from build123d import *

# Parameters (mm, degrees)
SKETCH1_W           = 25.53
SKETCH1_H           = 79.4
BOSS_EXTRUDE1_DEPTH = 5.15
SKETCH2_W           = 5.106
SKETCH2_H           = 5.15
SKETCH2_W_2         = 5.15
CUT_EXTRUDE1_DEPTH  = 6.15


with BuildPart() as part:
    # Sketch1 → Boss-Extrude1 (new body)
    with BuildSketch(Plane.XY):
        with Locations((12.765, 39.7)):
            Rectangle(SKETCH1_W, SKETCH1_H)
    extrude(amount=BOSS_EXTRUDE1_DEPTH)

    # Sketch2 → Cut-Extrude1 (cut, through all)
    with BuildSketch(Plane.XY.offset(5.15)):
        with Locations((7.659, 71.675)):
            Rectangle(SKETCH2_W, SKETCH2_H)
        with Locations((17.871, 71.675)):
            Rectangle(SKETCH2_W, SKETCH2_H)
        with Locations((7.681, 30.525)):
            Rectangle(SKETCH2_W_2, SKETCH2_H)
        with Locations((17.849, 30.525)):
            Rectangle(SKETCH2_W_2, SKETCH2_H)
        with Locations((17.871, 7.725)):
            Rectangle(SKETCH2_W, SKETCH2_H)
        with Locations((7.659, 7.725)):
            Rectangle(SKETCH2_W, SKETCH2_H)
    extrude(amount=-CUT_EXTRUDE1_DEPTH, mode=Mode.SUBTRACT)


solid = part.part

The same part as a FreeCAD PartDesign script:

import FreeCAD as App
import Part
import Sketcher


def add_polygon(sketch, points):
    """Adds a closed chain of lines whose ends are joined by coincident constraints."""
    first, n = sketch.GeometryCount, len(points)
    for a, b in zip(points, points[1:] + points[:1]):
        sketch.addGeometry(Part.LineSegment(App.Vector(*a, 0), App.Vector(*b, 0)), False)
    for i in range(n):
        sketch.addConstraint(Sketcher.Constraint("Coincident", first + i, 2, first + (i + 1) % n, 1))

doc = App.newDocument("Part")
body = doc.addObject("PartDesign::Body", "Body")

# Sketch on XY plane
sketch1 = body.newObject("Sketcher::SketchObject", "Sketch")
sketch1.AttachmentSupport = (doc.getObject("XY_Plane"), [""])
sketch1.MapMode = "FlatFace"
add_polygon(sketch1, [(0, 79), (0, 0), (26, 0), (26, 79)])  # lines 0-3
sketch1.addConstraint([
    Sketcher.Constraint("Vertical", 0),
    Sketcher.Constraint("Horizontal", 1),
    Sketcher.Constraint("Vertical", 2),
    Sketcher.Constraint("Horizontal", 3),
    Sketcher.Constraint("Coincident", 0, 2, -1, 1),
    Sketcher.Constraint("DistanceY", 0, 2, 0, 1, 79.4),
    Sketcher.Constraint("DistanceX", 1, 1, 1, 2, 25.53),
])
pad1 = body.newObject("PartDesign::Pad", "Pad")
pad1.Profile = sketch1
pad1.Length = 5.15

# Sketch on XY plane
sketch2 = body.newObject("Sketcher::SketchObject", "Sketch001")
sketch2.AttachmentSupport = (doc.getObject("XY_Plane"), [""])
sketch2.MapMode = "FlatFace"
sketch2.AttachmentOffset = App.Placement(App.Vector(0, 0, 5.15), App.Rotation())
add_polygon(sketch2, [(5, 74), (5, 69), (10, 69), (10, 74)])  # lines 0-3
add_polygon(sketch2, [(15, 74), (15, 69), (20, 69), (20, 74)])  # lines 4-7
add_polygon(sketch2, [(5, 33), (5, 28), (10, 28), (10, 33)])  # lines 8-11
add_polygon(sketch2, [(15, 33), (15, 28), (20, 28), (20, 33)])  # lines 12-15
add_polygon(sketch2, [(15, 10), (15, 5), (20, 5), (20, 10)])  # lines 16-19
add_polygon(sketch2, [(5, 10), (5, 5), (10, 5), (10, 10)])  # lines 20-23
sketch2.addConstraint([
    Sketcher.Constraint("Vertical", 0),
    Sketcher.Constraint("Horizontal", 1),
    Sketcher.Constraint("Vertical", 2),
    Sketcher.Constraint("Horizontal", 3),
    Sketcher.Constraint("Vertical", 4),
    Sketcher.Constraint("Horizontal", 5),
    Sketcher.Constraint("Vertical", 6),
    Sketcher.Constraint("Horizontal", 7),
    Sketcher.Constraint("Vertical", 8),
    Sketcher.Constraint("Horizontal", 9),
    Sketcher.Constraint("Vertical", 10),
    Sketcher.Constraint("Horizontal", 11),
    Sketcher.Constraint("Vertical", 12),
    Sketcher.Constraint("Horizontal", 13),
    Sketcher.Constraint("Vertical", 14),
    Sketcher.Constraint("Horizontal", 15),
    Sketcher.Constraint("Vertical", 16),
    Sketcher.Constraint("Horizontal", 17),
    Sketcher.Constraint("Vertical", 18),
    Sketcher.Constraint("Horizontal", 19),
    Sketcher.Constraint("Vertical", 20),
    Sketcher.Constraint("Horizontal", 21),
    Sketcher.Constraint("Vertical", 22),
    Sketcher.Constraint("Horizontal", 23),
    Sketcher.Constraint("Horizontal", 1, 2, 4, 2),
    Sketcher.Constraint("Horizontal", 3, 2, 6, 2),
    Sketcher.Constraint("Horizontal", 9, 2, 12, 2),
    Sketcher.Constraint("Horizontal", 11, 2, 14, 2),
    Sketcher.Constraint("Horizontal", 17, 2, 20, 2),
    Sketcher.Constraint("Horizontal", 19, 2, 22, 2),
    Sketcher.Constraint("Vertical", 3, 2, 8, 2),
    Sketcher.Constraint("Vertical", 6, 2, 13, 2),
    Sketcher.Constraint("Vertical", 7, 2, 16, 2),
    Sketcher.Constraint("Vertical", 14, 2, 17, 2),
    Sketcher.Constraint("Vertical", 11, 2, 20, 2),
    Sketcher.Constraint("Vertical", 2, 2, 21, 2),
    Sketcher.Constraint("Equal", 3, 5),
    Sketcher.Constraint("Equal", 11, 13),
    Sketcher.Constraint("Equal", 15, 0),
    Sketcher.Constraint("Equal", 6, 8),
    Sketcher.Constraint("Equal", 14, 16),
    Sketcher.Constraint("DistanceY", 10, 2, 1, 2, 36.0),
    Sketcher.Constraint("DistanceX", 9, 1, 9, 2, 5.15),
    Sketcher.Constraint("DistanceY", -1, 1, 0, 2, 69.1),
    Sketcher.Constraint("DistanceY", -1, 1, 18, 2, 10.3),
    Sketcher.Constraint("DistanceX", 1, 1, 1, 2, 5.106),
    Sketcher.Constraint("DistanceX", -1, 1, 0, 2, 5.106),
    Sketcher.Constraint("DistanceX", -1, 1, 4, 2, 15.318),
])
pocket1 = body.newObject("PartDesign::Pocket", "Pocket")
pocket1.Profile = sketch2
pocket1.Type = "ThroughAll"

doc.recompute()
